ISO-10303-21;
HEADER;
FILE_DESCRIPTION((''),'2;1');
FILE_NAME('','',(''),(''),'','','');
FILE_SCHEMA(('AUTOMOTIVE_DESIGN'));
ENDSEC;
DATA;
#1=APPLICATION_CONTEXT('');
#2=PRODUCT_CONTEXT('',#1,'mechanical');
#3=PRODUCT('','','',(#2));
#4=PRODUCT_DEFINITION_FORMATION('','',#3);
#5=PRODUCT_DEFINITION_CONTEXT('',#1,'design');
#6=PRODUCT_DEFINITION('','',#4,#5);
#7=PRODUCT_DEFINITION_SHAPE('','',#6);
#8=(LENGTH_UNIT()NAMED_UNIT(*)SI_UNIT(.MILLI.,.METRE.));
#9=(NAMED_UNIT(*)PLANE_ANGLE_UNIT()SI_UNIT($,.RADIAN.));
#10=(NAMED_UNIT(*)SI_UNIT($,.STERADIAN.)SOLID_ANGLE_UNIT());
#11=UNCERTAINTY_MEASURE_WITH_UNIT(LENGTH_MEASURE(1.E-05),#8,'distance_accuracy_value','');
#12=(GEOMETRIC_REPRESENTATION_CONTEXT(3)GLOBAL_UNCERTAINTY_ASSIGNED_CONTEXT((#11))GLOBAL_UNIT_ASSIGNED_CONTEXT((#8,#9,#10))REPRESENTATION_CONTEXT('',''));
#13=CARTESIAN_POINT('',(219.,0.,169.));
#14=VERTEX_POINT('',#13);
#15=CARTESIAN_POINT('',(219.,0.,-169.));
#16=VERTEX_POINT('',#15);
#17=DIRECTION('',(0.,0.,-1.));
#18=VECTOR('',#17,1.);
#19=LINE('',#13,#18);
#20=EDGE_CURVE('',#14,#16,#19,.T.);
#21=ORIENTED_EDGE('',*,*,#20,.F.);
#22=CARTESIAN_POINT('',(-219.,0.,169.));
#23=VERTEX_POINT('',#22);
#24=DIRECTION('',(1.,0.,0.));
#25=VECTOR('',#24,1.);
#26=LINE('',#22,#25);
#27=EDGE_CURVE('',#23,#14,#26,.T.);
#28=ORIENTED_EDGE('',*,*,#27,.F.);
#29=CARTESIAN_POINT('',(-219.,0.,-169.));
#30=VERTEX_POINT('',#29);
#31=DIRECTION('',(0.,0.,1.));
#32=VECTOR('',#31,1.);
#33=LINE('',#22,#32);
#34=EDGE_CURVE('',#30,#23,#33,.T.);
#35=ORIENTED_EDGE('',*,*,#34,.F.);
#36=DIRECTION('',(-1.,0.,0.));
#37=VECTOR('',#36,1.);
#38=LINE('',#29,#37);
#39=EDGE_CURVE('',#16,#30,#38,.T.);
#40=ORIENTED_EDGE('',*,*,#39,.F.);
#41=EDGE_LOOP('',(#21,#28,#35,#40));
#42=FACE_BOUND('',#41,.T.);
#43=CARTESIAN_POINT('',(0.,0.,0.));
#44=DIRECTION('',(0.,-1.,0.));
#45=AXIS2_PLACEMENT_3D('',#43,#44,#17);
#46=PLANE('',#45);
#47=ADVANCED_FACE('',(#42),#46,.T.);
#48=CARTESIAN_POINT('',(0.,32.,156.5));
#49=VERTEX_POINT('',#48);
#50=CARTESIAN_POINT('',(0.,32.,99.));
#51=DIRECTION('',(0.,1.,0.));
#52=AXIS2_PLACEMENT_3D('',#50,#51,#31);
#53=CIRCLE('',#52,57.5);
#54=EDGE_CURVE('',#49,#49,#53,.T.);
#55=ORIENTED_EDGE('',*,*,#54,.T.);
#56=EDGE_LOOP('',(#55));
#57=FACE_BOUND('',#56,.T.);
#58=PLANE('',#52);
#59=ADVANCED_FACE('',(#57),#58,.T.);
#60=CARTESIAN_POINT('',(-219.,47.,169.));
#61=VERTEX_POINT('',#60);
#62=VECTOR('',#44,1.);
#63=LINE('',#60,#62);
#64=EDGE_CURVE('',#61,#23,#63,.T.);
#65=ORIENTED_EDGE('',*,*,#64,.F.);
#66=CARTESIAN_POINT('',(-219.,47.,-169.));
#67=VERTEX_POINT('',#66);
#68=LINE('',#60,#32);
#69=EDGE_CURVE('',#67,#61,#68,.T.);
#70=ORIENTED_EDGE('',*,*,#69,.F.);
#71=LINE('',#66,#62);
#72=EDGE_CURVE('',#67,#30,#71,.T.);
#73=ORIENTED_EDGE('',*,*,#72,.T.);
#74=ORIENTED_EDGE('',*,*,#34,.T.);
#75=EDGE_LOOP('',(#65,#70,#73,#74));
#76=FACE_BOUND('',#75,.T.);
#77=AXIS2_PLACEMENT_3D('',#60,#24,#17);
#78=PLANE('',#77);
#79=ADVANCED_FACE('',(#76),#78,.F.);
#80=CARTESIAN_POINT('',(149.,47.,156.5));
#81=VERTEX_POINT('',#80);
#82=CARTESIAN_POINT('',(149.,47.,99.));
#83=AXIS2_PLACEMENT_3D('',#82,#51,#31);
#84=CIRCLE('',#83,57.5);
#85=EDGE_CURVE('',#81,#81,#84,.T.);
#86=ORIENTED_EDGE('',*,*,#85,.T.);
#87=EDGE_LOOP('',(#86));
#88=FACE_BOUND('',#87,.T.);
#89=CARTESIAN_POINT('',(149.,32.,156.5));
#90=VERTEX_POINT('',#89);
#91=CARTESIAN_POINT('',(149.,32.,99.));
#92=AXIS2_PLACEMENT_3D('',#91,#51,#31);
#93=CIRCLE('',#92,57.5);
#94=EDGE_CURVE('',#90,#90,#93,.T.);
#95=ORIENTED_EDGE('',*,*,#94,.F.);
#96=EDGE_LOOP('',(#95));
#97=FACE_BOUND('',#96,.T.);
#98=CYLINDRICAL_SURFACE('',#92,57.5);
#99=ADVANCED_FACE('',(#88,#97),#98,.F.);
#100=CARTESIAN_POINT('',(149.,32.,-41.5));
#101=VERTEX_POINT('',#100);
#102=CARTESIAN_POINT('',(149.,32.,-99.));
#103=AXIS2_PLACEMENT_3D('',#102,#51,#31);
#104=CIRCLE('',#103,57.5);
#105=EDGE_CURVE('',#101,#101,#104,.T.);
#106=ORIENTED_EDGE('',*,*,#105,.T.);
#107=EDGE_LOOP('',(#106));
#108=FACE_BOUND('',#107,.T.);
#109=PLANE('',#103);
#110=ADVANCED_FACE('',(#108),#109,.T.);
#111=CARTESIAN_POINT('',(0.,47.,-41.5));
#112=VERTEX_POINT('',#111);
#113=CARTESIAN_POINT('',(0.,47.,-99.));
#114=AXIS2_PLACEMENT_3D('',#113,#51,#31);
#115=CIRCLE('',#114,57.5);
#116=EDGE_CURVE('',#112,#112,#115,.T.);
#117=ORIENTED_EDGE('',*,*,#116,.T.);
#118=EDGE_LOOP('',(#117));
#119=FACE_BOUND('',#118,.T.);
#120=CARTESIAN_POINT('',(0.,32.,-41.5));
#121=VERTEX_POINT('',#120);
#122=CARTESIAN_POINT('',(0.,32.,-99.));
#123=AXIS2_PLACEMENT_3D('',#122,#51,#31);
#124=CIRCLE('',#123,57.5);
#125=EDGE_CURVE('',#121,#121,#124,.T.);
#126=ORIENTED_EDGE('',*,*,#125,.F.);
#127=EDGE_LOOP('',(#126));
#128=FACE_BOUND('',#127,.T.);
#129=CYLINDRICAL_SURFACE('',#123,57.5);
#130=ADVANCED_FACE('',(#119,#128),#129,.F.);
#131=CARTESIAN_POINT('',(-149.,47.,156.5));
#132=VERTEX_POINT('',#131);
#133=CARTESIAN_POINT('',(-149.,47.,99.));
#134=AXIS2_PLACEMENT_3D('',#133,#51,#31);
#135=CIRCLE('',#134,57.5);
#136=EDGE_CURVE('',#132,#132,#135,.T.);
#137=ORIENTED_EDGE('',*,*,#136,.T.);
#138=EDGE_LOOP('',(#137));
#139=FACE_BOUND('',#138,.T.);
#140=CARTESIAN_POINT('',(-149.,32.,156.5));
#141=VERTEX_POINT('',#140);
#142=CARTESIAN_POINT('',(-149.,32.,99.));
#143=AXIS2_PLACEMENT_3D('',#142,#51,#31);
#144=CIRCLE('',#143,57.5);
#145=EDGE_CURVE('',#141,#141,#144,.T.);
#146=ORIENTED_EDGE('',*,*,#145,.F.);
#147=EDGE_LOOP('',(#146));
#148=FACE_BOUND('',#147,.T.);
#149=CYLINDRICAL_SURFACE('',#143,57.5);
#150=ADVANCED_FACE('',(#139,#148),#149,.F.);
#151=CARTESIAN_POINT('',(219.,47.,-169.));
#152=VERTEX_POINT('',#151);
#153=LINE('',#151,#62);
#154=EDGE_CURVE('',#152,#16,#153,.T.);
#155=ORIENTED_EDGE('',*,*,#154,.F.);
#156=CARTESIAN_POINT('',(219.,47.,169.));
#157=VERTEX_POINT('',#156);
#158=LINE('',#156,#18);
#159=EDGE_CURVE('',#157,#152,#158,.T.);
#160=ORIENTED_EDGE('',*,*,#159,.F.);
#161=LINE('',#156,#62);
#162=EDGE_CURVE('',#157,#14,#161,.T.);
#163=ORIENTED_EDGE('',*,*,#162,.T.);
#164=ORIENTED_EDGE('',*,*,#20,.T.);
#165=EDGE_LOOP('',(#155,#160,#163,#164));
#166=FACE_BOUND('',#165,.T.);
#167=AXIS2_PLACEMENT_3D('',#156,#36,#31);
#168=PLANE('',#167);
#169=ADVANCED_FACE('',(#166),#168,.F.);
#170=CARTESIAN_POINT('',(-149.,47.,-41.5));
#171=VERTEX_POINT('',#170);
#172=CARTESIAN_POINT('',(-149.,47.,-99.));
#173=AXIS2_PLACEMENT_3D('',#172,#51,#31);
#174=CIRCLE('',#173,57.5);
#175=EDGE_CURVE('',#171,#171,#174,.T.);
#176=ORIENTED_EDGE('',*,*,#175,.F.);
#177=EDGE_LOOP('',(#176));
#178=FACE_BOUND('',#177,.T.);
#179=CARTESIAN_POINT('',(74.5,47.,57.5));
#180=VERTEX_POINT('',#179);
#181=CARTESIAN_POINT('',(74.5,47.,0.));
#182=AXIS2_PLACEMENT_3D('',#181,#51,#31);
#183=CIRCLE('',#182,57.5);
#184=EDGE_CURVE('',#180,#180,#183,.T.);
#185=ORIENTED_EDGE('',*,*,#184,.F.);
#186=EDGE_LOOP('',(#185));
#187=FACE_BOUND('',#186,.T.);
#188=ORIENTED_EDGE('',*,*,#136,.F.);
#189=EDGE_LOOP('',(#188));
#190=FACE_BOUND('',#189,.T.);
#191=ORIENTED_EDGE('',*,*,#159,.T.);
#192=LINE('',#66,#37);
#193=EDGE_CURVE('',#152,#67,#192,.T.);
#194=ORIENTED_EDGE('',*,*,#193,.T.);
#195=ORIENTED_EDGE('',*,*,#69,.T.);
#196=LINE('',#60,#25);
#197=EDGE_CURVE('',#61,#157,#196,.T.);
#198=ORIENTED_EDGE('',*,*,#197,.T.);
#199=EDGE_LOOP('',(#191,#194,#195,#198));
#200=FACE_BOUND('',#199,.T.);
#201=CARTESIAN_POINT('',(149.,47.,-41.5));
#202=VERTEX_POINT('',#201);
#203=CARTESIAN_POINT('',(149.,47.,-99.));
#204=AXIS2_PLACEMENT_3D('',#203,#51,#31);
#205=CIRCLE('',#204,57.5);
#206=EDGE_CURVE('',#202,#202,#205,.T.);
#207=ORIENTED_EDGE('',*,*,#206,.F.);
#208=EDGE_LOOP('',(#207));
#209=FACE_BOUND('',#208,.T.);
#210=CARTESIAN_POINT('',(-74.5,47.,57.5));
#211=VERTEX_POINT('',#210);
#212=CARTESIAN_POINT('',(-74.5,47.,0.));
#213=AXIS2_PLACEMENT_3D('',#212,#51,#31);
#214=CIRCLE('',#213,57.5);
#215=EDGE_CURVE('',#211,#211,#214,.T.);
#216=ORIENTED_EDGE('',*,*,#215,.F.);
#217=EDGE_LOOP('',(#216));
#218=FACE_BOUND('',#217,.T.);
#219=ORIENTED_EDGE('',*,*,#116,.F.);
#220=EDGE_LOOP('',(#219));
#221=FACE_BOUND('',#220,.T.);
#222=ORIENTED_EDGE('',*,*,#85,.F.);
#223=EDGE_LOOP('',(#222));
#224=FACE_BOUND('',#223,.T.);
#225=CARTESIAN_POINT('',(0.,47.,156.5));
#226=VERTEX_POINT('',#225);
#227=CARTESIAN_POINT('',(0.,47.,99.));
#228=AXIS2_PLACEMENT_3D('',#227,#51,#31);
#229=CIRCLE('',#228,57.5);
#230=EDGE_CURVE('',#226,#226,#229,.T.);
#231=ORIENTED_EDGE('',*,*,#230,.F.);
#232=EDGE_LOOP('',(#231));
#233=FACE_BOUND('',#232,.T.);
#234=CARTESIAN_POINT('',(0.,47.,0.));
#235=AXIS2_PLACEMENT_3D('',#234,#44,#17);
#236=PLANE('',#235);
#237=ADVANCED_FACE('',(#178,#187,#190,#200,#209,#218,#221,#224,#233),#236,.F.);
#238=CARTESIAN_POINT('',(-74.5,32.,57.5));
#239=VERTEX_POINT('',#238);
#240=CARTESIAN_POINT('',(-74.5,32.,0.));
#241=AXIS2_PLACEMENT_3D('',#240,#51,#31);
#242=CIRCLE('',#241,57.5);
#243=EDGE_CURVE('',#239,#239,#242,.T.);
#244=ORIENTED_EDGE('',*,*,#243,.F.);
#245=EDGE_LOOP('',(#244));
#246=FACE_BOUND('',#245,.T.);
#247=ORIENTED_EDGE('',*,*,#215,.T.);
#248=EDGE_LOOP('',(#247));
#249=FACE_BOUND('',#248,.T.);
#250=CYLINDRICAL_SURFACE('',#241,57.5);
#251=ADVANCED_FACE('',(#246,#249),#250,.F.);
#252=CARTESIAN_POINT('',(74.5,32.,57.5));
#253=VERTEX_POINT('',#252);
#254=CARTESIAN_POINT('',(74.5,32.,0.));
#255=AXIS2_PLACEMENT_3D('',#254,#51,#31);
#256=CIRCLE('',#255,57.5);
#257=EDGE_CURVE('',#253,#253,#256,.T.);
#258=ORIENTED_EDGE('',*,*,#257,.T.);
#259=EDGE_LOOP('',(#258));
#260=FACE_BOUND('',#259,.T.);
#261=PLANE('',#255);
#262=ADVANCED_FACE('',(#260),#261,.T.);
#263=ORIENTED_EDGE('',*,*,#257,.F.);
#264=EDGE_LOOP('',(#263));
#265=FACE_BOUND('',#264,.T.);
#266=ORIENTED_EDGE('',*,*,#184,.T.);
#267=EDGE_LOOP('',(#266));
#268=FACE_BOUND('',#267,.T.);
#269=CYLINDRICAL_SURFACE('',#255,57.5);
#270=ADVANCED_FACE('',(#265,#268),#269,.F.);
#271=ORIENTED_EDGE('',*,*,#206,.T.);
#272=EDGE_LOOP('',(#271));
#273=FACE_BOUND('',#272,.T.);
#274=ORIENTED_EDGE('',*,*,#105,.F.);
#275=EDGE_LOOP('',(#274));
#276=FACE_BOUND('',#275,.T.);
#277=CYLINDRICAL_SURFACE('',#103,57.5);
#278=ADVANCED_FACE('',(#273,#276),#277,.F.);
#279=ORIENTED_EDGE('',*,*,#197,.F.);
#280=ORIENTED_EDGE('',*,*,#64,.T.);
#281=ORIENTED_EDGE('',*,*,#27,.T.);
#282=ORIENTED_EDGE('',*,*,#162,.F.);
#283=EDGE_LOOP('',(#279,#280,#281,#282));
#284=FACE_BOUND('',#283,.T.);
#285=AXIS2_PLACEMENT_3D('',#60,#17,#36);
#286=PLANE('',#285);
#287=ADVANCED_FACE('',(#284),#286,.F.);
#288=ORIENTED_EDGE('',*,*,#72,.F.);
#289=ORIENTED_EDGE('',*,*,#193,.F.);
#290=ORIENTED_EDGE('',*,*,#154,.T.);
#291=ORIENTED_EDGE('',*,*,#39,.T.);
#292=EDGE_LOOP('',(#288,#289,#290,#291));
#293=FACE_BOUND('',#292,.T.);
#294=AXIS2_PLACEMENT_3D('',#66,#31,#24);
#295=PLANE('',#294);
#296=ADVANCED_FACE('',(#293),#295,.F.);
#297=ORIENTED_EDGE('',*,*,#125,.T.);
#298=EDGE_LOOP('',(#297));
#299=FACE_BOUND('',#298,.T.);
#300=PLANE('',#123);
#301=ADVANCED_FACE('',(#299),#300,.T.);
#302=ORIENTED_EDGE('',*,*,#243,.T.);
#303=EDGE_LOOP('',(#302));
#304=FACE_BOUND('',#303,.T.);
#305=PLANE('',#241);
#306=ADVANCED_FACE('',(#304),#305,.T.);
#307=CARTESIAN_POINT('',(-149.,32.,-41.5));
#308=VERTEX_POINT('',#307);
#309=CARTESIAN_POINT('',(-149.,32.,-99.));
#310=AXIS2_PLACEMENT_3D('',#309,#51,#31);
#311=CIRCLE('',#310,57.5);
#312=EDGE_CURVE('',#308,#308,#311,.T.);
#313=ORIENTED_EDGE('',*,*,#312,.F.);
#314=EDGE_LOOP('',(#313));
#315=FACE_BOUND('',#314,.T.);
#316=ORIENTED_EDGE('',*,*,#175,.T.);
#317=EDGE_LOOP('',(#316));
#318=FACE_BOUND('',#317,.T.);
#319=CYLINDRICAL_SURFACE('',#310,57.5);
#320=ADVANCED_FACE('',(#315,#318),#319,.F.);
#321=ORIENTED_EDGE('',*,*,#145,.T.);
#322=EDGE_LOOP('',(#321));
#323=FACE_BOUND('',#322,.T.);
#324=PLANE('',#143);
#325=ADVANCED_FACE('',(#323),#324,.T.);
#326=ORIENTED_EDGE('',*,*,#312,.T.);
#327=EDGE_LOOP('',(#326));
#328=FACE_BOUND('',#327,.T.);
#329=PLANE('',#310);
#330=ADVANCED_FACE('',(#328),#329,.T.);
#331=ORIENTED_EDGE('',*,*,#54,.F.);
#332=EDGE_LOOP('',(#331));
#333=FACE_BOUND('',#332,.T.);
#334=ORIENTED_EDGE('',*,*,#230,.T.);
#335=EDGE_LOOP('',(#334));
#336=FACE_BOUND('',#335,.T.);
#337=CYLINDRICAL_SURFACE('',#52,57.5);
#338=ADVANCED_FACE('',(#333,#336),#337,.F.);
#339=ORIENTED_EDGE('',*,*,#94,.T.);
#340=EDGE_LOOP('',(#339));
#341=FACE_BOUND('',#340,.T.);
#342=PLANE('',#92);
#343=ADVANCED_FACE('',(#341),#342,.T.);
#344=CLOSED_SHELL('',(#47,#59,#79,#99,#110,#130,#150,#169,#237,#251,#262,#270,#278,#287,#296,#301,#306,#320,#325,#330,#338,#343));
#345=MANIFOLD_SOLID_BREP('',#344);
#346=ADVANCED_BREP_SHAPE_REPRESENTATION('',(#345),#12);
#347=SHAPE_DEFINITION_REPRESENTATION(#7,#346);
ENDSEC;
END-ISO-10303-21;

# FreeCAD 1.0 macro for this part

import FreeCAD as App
import Part
import Sketcher


def add_polygon(sketch, points):
    """Adds a closed chain of lines whose ends are joined by coincident constraints."""
    first, n = sketch.GeometryCount, len(points)
    for a, b in zip(points, points[1:] + points[:1]):
        sketch.addGeometry(Part.LineSegment(App.Vector(*a, 0), App.Vector(*b, 0)), False)
    for i in range(n):
        sketch.addConstraint(Sketcher.Constraint("Coincident", first + i, 2, first + (i + 1) % n, 1))

doc = App.newDocument("Part")
body = doc.addObject("PartDesign::Body", "Body")

sketch1 = body.newObject("Sketcher::SketchObject", "Sketch")
sketch1.AttachmentSupport = (doc.getObject("XZ_Plane"), [""])
sketch1.MapMode = "FlatFace"
add_polygon(sketch1, [(-219, -169), (-219, 169), (219, 169), (219, -169)])
sketch1.addConstraint([
    Sketcher.Constraint("Vertical", 0),
    Sketcher.Constraint("Horizontal", 1),
    Sketcher.Constraint("Vertical", 2),
    Sketcher.Constraint("Horizontal", 3),
    Sketcher.Constraint("Symmetric", 0, 2, 2, 2, -1, 1),
    Sketcher.Constraint("DistanceX", 1, 1, 1, 2, 438.0),
    Sketcher.Constraint("DistanceY", 0, 1, 0, 2, 338.0),
])
pad1 = body.newObject("PartDesign::Pad", "Pad")
pad1.Profile = sketch1
pad1.Length = 47
pad1.Reversed = True

sketch2 = body.newObject("Sketcher::SketchObject", "Sketch001")
sketch2.AttachmentSupport = (doc.getObject("XZ_Plane"), [""])
sketch2.MapMode = "FlatFace"
sketch2.AttachmentOffset = App.Placement(App.Vector(0, 0, -47), App.Rotation())
sketch2.addGeometry([
    Part.Circle(App.Vector(-149, -99, 0), App.Vector(0, 0, 1), 57.5),
    Part.Circle(App.Vector(0, -99, 0), App.Vector(0, 0, 1), 57.5),
    Part.Circle(App.Vector(0, 99, 0), App.Vector(0, 0, 1), 57.5),
    Part.Circle(App.Vector(-149, 99, 0), App.Vector(0, 0, 1), 57.5),
    Part.Circle(App.Vector(-74.5, 0, 0), App.Vector(0, 0, 1), 57.5),
    Part.Circle(App.Vector(149, -99, 0), App.Vector(0, 0, 1), 57.5),
    Part.Circle(App.Vector(149, 99, 0), App.Vector(0, 0, 1), 57.5),
    Part.Circle(App.Vector(74.5, 0, 0), App.Vector(0, 0, 1), 57.5),
], False)
sketch2.addConstraint([
    Sketcher.Constraint("Equal", 0, 1),
    Sketcher.Constraint("Equal", 1, 2),
    Sketcher.Constraint("Equal", 2, 3),
    Sketcher.Constraint("Equal", 3, 4),
    Sketcher.Constraint("Equal", 4, 5),
    Sketcher.Constraint("Equal", 5, 6),
    Sketcher.Constraint("Equal", 6, 7),
    Sketcher.Constraint("Symmetric", 1, 3, 2, 3, -1, 1),
    Sketcher.Constraint("Symmetric", 3, 3, 5, 3, -1, 1),
    Sketcher.Constraint("Symmetric", 0, 3, 6, 3, -1, 1),
    Sketcher.Constraint("Symmetric", 4, 3, 7, 3, -1, 1),
    Sketcher.Constraint("Symmetric", 0, 3, 5, 3, -2),
    Sketcher.Constraint("PointOnObject", 1, 3, -2),
    Sketcher.Constraint("PointOnObject", 4, 3, -1),
    Sketcher.Constraint("Horizontal", 0, 3, 1, 3),
    Sketcher.Constraint("Diameter", 0, 115.0),
    Sketcher.Constraint("DistanceX", 0, 3, -1, 1, 149.0),
    Sketcher.Constraint("DistanceY", 0, 3, -1, 1, 99.0),
    Sketcher.Constraint("DistanceX", 4, 3, 7, 3, 149.0),
])
pocket1 = body.newObject("PartDesign::Pocket", "Pocket")
pocket1.Profile = sketch2
pocket1.Length = 15
pocket1.Reversed = True

doc.recompute()
